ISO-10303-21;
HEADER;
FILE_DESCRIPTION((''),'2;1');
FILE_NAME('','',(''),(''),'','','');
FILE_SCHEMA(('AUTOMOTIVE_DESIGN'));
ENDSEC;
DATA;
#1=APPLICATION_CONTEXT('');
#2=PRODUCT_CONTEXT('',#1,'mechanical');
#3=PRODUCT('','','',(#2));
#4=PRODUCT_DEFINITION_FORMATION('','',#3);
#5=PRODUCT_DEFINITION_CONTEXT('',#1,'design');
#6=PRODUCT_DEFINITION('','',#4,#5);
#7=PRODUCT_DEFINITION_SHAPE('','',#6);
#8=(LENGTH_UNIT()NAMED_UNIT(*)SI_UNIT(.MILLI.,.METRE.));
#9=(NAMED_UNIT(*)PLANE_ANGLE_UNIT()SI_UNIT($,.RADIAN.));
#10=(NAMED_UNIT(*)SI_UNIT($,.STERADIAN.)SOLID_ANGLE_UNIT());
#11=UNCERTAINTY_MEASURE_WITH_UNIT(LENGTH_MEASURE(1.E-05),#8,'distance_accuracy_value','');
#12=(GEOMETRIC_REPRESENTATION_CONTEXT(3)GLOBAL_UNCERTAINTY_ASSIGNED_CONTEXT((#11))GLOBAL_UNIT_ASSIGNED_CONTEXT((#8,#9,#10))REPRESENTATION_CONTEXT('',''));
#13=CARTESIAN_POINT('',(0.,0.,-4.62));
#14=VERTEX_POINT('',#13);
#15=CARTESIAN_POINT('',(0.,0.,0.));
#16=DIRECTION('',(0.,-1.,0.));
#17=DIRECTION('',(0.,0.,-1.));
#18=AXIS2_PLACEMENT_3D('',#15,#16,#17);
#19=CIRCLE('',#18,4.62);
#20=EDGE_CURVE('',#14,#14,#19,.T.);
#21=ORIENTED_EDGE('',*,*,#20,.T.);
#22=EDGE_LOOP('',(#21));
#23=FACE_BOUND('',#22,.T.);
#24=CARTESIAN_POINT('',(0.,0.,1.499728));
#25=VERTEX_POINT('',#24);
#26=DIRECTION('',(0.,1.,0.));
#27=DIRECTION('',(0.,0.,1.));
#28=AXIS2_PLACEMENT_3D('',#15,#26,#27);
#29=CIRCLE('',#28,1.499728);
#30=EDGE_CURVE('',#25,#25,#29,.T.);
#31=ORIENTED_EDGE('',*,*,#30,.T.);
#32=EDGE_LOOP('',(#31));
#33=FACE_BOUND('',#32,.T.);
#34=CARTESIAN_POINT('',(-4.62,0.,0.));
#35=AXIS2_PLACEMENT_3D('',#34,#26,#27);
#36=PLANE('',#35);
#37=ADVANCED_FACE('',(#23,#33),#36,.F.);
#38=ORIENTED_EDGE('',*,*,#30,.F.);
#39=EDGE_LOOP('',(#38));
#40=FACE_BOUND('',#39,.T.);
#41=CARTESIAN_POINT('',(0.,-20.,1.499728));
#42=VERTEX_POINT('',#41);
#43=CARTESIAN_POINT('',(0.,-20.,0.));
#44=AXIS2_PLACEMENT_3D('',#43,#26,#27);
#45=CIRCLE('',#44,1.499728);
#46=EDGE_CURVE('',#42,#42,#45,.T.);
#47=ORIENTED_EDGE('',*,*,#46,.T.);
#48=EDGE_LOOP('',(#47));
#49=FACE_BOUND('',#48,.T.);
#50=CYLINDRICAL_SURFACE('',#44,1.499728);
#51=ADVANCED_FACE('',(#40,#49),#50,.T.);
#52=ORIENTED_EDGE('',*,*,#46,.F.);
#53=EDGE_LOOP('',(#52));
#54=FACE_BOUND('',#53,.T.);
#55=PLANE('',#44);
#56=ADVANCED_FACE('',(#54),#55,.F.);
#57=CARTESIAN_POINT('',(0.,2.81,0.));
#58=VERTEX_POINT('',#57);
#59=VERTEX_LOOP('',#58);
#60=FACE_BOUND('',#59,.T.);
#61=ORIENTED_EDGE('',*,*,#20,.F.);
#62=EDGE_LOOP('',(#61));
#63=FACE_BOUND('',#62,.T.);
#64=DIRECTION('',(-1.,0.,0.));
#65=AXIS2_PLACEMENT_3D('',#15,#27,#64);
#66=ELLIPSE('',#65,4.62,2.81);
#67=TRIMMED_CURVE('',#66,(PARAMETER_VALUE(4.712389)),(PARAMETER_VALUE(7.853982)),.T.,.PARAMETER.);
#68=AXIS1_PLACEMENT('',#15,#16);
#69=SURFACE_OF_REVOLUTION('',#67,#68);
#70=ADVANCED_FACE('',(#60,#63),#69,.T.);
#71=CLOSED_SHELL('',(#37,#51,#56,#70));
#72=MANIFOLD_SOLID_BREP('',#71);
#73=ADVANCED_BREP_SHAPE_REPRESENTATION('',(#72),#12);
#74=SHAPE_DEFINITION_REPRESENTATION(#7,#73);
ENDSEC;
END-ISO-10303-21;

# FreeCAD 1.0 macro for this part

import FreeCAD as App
import Part
import Sketcher
from FreeCAD import Vector
Q = App.Units.Quantity

doc = App.newDocument("Part")
body = doc.addObject("PartDesign::Body", "Body")

sketch1 = body.newObject("Sketcher::SketchObject", "Sketch")
sketch1.AttachmentSupport = (doc.getObject("XY_Plane"), [""])
sketch1.MapMode = "FlatFace"
sketch1.addGeometry([
    Part.LineSegment(Vector(-4.62, 0, 0), Vector(0, 0, 0)),
    Part.LineSegment(Vector(0, 0, 0), Vector(0, 2.81, 0)),
    Part.BSplineCurve([Vector(0, 2.81, 0), Vector(-4.62, 2.81, 0), Vector(-4.62, 0, 0)], [3, 3], [4.71238898, 6.283185307], False, 2, [1, 0.707106781, 1], False),
], False)
sketch1.addConstraint([
    Sketcher.Constraint("Block", 2),
    Sketcher.Constraint("Coincident", 0, 2, 1, 1),
    Sketcher.Constraint("Coincident", 1, 2, 2, 1),
    Sketcher.Constraint("Coincident", 2, 2, 0, 1),
    Sketcher.Constraint("Horizontal", 0),
    Sketcher.Constraint("Vertical", 1),
])
revolution = body.newObject("PartDesign::Revolution", "Revolution")
revolution.Profile = sketch1
revolution.ReferenceAxis = (sketch1, ["V_Axis"])
revolution.Angle = 360

sketch2 = body.newObject("Sketcher::SketchObject", "Sketch001")
sketch2.AttachmentSupport = (doc.getObject("XZ_Plane"), [""])
sketch2.MapMode = "FlatFace"
sketch2.addGeometry(Part.Circle(Vector(0, 0, 0), Vector(0, 0, 1), 1.5), False)
sketch2.addConstraint([
    Sketcher.Constraint("Coincident", 0, 3, -1, 1),
    Sketcher.Constraint("Diameter", 0, Q("2.999456 mm")),
])
pad1 = body.newObject("PartDesign::Pad", "Pad")
pad1.Profile = sketch2
pad1.Length = 20

doc.recompute()
